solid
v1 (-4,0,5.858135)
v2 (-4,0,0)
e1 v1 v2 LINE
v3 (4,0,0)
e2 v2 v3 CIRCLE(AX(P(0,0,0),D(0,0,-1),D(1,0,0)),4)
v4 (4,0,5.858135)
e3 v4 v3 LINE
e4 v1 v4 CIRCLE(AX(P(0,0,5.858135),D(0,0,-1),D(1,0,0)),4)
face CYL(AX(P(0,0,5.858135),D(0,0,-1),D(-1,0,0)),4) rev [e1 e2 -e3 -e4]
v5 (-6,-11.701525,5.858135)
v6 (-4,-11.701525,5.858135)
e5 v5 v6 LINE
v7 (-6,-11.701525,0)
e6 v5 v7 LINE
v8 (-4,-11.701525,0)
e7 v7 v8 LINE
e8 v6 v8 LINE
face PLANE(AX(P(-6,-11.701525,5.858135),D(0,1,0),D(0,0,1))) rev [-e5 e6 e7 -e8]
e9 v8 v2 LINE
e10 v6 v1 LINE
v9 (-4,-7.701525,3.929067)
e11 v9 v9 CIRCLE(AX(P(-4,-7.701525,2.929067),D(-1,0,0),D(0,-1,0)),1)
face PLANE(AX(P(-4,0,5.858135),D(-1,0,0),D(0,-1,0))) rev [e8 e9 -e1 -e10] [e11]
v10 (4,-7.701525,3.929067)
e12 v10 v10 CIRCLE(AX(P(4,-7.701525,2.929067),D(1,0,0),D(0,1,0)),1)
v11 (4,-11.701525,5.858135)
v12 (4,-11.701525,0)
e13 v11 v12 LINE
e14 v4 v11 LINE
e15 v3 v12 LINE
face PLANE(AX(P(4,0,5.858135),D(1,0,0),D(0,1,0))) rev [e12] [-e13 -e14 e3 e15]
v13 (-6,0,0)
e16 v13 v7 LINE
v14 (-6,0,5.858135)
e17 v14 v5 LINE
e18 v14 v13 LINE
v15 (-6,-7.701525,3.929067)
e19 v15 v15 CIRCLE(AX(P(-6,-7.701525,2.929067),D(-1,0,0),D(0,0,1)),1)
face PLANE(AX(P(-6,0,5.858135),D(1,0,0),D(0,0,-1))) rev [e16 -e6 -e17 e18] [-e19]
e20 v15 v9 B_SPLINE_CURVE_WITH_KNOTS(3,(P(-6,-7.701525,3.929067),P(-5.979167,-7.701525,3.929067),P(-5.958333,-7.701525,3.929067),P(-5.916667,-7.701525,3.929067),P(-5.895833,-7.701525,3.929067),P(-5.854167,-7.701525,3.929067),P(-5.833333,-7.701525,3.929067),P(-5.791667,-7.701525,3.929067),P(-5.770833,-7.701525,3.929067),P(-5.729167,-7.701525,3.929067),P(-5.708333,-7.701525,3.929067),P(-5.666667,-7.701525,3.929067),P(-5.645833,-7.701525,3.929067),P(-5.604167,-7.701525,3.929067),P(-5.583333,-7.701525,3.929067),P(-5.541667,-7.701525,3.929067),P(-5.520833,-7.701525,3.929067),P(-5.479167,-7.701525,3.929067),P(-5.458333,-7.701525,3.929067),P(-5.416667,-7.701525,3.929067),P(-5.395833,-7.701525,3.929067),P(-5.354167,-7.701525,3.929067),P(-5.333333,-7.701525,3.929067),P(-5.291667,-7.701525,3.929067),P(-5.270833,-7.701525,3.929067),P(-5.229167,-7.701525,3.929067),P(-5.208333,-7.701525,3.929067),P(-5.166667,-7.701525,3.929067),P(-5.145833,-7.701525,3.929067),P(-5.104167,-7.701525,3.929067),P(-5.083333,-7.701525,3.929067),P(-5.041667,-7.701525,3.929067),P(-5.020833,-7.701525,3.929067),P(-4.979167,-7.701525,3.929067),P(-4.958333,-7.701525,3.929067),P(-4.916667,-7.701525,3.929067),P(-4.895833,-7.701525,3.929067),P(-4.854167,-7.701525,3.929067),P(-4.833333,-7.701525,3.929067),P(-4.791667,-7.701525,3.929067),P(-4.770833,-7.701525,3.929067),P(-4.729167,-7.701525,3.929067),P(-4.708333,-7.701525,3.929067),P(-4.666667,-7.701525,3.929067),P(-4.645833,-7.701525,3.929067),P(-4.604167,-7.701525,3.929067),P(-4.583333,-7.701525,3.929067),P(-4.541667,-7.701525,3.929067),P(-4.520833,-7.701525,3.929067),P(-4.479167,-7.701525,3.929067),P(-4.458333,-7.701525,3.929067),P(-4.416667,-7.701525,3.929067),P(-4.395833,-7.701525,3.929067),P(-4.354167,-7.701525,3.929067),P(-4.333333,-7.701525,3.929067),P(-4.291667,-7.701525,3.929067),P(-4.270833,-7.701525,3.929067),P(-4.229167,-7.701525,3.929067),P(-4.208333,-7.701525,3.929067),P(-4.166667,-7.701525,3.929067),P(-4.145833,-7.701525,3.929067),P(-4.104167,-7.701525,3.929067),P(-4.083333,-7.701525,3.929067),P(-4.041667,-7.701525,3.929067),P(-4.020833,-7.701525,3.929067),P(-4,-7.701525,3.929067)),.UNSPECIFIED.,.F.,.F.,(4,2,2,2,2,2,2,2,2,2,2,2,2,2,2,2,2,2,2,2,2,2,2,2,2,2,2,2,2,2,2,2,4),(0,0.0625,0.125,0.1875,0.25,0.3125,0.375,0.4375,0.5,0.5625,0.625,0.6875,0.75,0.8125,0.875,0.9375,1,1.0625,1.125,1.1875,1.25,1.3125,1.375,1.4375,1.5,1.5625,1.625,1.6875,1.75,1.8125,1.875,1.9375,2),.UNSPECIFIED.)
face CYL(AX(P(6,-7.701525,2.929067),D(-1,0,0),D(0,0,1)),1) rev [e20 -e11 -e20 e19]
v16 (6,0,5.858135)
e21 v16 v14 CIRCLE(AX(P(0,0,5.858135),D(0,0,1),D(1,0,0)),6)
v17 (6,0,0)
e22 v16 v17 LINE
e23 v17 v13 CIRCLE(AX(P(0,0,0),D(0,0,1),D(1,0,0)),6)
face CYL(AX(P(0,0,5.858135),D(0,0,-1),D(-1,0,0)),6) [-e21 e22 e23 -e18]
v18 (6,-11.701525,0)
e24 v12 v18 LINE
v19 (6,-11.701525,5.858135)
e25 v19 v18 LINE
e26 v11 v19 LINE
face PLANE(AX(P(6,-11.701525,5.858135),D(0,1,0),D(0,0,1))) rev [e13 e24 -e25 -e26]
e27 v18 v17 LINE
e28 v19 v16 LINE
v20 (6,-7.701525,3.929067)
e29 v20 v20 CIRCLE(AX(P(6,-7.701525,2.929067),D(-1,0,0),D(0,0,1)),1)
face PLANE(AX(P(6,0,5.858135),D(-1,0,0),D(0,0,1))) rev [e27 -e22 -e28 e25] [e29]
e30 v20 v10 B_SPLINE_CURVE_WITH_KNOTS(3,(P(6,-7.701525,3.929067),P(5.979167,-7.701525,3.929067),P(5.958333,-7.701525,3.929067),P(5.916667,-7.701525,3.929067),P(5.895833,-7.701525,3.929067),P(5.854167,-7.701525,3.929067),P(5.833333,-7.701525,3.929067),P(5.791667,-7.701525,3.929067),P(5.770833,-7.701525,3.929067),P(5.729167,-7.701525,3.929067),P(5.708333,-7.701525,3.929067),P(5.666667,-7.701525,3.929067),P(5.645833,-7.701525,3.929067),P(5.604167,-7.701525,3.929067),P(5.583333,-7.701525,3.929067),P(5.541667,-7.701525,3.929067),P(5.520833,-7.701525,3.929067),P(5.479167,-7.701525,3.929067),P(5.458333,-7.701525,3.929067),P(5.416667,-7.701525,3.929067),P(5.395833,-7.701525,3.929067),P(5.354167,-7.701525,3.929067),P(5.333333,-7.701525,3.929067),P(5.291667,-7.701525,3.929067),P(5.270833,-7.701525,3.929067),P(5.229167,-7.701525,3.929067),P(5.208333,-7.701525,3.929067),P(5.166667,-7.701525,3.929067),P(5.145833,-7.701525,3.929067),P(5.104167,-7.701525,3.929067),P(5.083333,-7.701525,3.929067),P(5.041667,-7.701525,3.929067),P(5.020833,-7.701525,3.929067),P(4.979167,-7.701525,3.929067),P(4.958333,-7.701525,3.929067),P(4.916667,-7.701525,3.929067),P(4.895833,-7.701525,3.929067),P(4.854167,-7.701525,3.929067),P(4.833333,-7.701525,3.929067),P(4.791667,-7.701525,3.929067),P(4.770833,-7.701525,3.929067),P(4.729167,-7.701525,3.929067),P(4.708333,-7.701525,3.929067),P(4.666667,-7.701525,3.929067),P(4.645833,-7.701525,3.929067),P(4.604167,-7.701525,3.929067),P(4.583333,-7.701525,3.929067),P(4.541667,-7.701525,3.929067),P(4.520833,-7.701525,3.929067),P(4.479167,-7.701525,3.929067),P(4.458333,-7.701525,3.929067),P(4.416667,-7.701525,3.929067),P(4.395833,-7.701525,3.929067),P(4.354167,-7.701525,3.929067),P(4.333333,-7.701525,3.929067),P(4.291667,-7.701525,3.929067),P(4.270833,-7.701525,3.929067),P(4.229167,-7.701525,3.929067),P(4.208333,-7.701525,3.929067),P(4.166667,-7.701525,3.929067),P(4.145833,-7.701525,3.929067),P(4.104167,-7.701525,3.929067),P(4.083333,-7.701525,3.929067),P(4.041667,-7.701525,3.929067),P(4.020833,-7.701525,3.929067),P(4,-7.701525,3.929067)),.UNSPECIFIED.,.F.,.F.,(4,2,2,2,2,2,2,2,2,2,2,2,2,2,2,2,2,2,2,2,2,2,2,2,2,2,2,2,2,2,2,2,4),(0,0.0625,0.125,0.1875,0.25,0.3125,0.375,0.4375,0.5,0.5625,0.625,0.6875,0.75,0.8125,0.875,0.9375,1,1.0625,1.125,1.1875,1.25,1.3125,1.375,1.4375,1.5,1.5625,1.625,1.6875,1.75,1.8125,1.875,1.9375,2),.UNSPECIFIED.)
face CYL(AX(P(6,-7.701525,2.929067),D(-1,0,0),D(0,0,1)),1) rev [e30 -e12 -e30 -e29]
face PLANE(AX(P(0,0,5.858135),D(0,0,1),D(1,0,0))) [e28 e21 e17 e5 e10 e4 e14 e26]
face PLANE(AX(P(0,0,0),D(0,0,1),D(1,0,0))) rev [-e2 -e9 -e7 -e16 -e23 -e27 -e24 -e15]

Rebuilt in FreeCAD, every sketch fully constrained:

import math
import FreeCAD as App
import Part
import Sketcher
Q = App.Units.Quantity

doc = App.newDocument("Part")
params = doc.addObject("Spreadsheet::Sheet", "Params")
for row, (alias, value) in enumerate([
    ("sketch1_radius", "4 mm"),
    ("sketch1_radius2", "6 mm"),
    ("pad1_length", "5.858135 mm"),
    ("sketch2_diameter", "2 mm"),
], start=1):
    params.set(f"A{row}", alias)
    params.set(f"B{row}", "=" + value)
    params.setAlias(f"B{row}", alias)

body = doc.addObject("PartDesign::Body", "Body")

# Sketch on XY plane
sketch1 = body.newObject("Sketcher::SketchObject", "Sketch")
sketch1.AttachmentSupport = (doc.getObject("XY_Plane"), [""])
sketch1.MapMode = "FlatFace"
sketch1.addGeometry([
    Part.LineSegment(App.Vector(-4, -11.7, 0), App.Vector(-4, 0, 0)),  # 0
    Part.ArcOfCircle(Part.Circle(App.Vector(0, 0, 0), App.Vector(0, 0, 1), 4), math.radians(0), math.radians(180)),  # 1
    Part.LineSegment(App.Vector(4, 0, 0), App.Vector(4, -11.7, 0)),  # 2
    Part.LineSegment(App.Vector(4, -11.7, 0), App.Vector(6, -11.7, 0)),  # 3
    Part.LineSegment(App.Vector(6, -11.7, 0), App.Vector(6, 0, 0)),  # 4
    Part.ArcOfCircle(Part.Circle(App.Vector(0, 0, 0), App.Vector(0, 0, 1), 6), math.radians(0), math.radians(180)),  # 5
    Part.LineSegment(App.Vector(-6, 0, 0), App.Vector(-6, -11.7, 0)),  # 6
    Part.LineSegment(App.Vector(-6, -11.7, 0), App.Vector(-4, -11.7, 0)),  # 7
], False)
sketch1.addConstraint([
    Sketcher.Constraint("Tangent", 0, 2, 1, 2),
    Sketcher.Constraint("Tangent", 1, 1, 2, 1),
    Sketcher.Constraint("Coincident", 2, 2, 3, 1),
    Sketcher.Constraint("Coincident", 3, 2, 4, 1),
    Sketcher.Constraint("Tangent", 4, 2, 5, 1),
    Sketcher.Constraint("Tangent", 5, 2, 6, 1),
    Sketcher.Constraint("Coincident", 6, 2, 7, 1),
    Sketcher.Constraint("Coincident", 7, 2, 0, 1),
    Sketcher.Constraint("Vertical", 0),
    Sketcher.Constraint("Vertical", 2),
    Sketcher.Constraint("Horizontal", 3),
    Sketcher.Constraint("Vertical", 4),
    Sketcher.Constraint("Vertical", 6),
    Sketcher.Constraint("Horizontal", 7),
    Sketcher.Constraint("Coincident", 1, 3, -1, 1),
    Sketcher.Constraint("Coincident", 5, 3, -1, 1),
    Sketcher.Constraint("Horizontal", 3, 2, 6, 2),
    Sketcher.Constraint("Radius", 1, Q("4 mm")),
    Sketcher.Constraint("Radius", 5, Q("6 mm")),
    Sketcher.Constraint("DistanceY", 0, 1, 0, 2, Q("11.701525 mm")),
])
sketch1.setExpression("Constraints[17]", "Params.sketch1_radius")
sketch1.setExpression("Constraints[18]", "Params.sketch1_radius2")
pad1 = body.newObject("PartDesign::Pad", "Pad")
pad1.Profile = sketch1
pad1.setExpression("Length", "Params.pad1_length")

# Sketch on YZ plane
sketch2 = body.newObject("Sketcher::SketchObject", "Sketch001")
sketch2.AttachmentSupport = (doc.getObject("YZ_Plane"), [""])
sketch2.MapMode = "FlatFace"
sketch2.AttachmentOffset = App.Placement(App.Vector(0, 0, -6), App.Rotation())
sketch2.addGeometry(Part.Circle(App.Vector(-7.7, 2.9, 0), App.Vector(0, 0, 1), 1), False)
sketch2.addConstraint([
    Sketcher.Constraint("Diameter", 0, Q("2 mm")),
    Sketcher.Constraint("DistanceX", 0, 3, -1, 1, Q("7.701525 mm")),
    Sketcher.Constraint("DistanceY", -1, 1, 0, 3, Q("2.929067 mm")),
])
sketch2.setExpression("Constraints[0]", "Params.sketch2_diameter")
pocket1 = body.newObject("PartDesign::Pocket", "Pocket")
pocket1.Profile = sketch2
pocket1.Type = "ThroughAll"
pocket1.Reversed = True

doc.recompute()
